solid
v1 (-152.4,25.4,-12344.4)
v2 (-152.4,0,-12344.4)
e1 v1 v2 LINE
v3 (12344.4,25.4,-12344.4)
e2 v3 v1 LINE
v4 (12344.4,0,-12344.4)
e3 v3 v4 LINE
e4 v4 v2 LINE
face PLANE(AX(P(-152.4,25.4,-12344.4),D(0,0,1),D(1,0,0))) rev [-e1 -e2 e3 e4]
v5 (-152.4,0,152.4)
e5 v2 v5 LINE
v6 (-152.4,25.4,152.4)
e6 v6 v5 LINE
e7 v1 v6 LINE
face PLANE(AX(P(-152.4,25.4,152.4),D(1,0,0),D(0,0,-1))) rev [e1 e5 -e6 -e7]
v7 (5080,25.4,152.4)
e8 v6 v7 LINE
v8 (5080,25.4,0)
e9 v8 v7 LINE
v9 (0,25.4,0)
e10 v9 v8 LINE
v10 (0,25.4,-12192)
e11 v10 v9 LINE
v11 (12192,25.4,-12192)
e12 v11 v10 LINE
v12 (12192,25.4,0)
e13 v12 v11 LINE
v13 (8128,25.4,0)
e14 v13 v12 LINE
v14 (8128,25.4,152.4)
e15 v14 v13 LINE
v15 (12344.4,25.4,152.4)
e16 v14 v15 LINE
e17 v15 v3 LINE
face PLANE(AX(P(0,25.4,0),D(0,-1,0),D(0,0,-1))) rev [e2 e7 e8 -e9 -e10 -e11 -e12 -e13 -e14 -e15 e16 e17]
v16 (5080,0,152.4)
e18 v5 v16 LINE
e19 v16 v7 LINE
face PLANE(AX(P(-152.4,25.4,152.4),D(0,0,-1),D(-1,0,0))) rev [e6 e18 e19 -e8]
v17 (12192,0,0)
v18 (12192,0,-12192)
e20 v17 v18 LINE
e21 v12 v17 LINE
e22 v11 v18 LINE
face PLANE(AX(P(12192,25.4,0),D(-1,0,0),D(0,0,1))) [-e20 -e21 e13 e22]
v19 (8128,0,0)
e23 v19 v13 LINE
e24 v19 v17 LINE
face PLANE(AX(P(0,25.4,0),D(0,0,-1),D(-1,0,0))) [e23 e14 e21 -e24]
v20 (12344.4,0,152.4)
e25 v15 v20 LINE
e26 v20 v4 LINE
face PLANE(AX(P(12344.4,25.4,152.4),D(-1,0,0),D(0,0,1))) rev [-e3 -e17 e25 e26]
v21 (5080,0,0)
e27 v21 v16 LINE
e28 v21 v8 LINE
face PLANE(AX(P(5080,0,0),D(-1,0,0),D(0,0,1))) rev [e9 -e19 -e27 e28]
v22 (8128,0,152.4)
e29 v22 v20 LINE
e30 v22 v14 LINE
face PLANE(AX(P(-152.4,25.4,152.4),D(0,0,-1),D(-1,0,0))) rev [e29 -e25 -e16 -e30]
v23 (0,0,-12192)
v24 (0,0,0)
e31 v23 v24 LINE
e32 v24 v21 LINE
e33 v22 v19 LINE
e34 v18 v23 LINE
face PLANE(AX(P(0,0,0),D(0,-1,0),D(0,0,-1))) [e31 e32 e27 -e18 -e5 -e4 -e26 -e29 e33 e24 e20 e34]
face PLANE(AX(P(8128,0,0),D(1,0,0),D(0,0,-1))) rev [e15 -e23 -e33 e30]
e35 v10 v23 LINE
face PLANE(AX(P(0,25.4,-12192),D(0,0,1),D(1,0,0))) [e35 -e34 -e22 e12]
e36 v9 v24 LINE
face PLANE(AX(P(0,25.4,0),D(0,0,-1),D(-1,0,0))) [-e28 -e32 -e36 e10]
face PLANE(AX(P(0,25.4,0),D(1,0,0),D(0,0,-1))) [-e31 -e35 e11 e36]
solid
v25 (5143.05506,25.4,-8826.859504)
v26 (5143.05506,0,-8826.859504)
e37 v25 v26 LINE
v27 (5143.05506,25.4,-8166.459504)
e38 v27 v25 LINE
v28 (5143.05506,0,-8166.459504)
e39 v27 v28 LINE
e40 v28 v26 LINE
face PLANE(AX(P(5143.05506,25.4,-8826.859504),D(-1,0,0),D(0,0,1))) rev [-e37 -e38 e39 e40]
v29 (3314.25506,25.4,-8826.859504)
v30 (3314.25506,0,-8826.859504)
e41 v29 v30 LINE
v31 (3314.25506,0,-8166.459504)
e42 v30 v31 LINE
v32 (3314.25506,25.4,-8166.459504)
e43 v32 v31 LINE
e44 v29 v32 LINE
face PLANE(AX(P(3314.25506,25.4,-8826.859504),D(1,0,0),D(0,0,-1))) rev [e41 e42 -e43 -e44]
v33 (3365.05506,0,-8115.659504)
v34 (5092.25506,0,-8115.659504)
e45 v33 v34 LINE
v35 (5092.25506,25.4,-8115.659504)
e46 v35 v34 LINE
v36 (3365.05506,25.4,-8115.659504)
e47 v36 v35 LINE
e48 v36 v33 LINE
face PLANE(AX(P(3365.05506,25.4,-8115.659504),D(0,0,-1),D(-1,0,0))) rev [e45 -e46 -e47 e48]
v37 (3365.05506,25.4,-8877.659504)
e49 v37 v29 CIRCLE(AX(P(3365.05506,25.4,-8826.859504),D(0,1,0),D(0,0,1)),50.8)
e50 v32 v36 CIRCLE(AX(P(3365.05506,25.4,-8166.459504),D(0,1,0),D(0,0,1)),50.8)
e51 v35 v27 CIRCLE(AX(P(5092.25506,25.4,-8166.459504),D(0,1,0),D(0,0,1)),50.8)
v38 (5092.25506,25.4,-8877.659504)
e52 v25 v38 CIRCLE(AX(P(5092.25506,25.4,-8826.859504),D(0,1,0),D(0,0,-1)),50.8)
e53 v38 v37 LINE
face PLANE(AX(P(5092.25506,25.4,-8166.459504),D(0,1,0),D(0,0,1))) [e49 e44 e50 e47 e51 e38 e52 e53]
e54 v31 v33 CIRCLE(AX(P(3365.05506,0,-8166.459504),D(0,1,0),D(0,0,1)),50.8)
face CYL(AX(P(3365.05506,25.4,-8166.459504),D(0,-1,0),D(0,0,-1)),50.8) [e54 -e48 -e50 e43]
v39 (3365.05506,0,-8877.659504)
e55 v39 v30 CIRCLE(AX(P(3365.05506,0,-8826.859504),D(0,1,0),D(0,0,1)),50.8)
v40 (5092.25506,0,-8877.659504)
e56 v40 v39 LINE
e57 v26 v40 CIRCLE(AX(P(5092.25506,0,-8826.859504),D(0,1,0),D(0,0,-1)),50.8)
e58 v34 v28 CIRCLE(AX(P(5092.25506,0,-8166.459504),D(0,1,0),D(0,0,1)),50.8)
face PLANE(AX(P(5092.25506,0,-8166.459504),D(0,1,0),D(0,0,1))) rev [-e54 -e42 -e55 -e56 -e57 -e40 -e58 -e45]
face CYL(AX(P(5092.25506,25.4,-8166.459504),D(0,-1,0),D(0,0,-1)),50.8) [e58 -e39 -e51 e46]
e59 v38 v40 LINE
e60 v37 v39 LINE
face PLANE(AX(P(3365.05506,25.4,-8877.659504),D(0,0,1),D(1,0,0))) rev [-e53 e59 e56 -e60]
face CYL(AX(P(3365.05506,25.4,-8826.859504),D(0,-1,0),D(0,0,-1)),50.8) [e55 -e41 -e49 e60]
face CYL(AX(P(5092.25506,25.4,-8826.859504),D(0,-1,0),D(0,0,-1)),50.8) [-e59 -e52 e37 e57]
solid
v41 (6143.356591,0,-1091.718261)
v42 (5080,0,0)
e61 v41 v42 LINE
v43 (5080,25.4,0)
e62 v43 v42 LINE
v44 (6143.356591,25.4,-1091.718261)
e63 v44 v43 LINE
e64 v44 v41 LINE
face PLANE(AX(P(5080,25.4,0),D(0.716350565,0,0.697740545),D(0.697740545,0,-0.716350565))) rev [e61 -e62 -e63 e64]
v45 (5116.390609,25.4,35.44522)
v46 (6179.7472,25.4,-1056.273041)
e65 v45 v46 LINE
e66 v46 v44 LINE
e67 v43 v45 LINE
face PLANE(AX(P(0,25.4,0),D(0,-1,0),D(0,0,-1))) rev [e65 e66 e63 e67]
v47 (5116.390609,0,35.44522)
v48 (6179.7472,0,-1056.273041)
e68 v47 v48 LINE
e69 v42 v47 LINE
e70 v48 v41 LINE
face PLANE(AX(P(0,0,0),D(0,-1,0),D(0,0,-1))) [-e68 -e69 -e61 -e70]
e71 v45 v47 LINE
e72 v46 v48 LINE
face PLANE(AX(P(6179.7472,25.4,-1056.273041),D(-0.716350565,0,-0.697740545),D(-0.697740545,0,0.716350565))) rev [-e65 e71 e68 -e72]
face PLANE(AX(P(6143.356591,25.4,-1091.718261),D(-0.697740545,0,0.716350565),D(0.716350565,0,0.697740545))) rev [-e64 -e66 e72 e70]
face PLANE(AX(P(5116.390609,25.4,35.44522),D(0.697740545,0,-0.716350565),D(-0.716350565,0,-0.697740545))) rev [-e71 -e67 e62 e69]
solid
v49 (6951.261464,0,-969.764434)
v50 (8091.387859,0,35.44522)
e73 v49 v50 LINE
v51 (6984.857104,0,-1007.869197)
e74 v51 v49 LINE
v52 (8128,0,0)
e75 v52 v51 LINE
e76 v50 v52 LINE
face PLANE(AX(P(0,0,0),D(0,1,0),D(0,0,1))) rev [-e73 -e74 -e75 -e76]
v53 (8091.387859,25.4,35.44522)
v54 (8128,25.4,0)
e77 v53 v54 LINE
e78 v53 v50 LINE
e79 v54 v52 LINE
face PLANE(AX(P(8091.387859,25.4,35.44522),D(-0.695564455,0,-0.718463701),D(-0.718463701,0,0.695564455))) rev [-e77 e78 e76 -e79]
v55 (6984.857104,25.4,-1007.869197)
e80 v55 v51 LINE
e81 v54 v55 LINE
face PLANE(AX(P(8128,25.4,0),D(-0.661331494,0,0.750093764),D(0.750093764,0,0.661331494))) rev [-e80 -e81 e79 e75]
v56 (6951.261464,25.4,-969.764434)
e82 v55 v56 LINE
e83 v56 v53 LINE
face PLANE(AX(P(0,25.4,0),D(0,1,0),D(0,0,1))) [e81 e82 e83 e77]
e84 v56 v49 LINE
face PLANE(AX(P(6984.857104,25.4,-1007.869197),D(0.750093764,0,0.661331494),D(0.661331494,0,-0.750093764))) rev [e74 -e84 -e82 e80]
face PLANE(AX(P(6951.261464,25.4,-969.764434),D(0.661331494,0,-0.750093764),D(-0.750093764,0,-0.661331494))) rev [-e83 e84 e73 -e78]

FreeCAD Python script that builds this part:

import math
import FreeCAD as App
import Part
import Sketcher

V = App.Vector
Q = App.Units.Quantity

doc = App.newDocument("Part")
body = doc.addObject("PartDesign::Body", "Body")

# Sketch on XZ plane
sketch1 = body.newObject("Sketcher::SketchObject", "Sketch")
sketch1.AttachmentSupport = (doc.getObject("XZ_Plane"), [""])
sketch1.MapMode = "FlatFace"
sketch1.addGeometry(Part.LineSegment(V(-152, -12344, 0), V(-152, 152, 0)), False)
sketch1.addGeometry(Part.LineSegment(V(-152, 152, 0), V(12344, 152, 0)), False)
sketch1.addGeometry(Part.LineSegment(V(12344, 152, 0), V(12344, -12344, 0)), False)
sketch1.addGeometry(Part.LineSegment(V(12344, -12344, 0), V(-152, -12344, 0)), False)
sketch1.addGeometry(Part.LineSegment(V(12192, 0, 0), V(0, 0, 0)), False)
sketch1.addGeometry(Part.LineSegment(V(0, 0, 0), V(0, -12192, 0)), False)
sketch1.addGeometry(Part.LineSegment(V(0, -12192, 0), V(12192, -12192, 0)), False)
sketch1.addGeometry(Part.LineSegment(V(12192, -12192, 0), V(12192, 0, 0)), False)
sketch1.addConstraint(Sketcher.Constraint("Coincident", 0, 2, 1, 1))
sketch1.addConstraint(Sketcher.Constraint("Coincident", 1, 2, 2, 1))
sketch1.addConstraint(Sketcher.Constraint("Coincident", 2, 2, 3, 1))
sketch1.addConstraint(Sketcher.Constraint("Coincident", 3, 2, 0, 1))
sketch1.addConstraint(Sketcher.Constraint("Coincident", 4, 2, 5, 1))
sketch1.addConstraint(Sketcher.Constraint("Coincident", 5, 2, 6, 1))
sketch1.addConstraint(Sketcher.Constraint("Coincident", 6, 2, 7, 1))
sketch1.addConstraint(Sketcher.Constraint("Coincident", 7, 2, 4, 1))
sketch1.addConstraint(Sketcher.Constraint("Vertical", 0))
sketch1.addConstraint(Sketcher.Constraint("Horizontal", 1))
sketch1.addConstraint(Sketcher.Constraint("Vertical", 2))
sketch1.addConstraint(Sketcher.Constraint("Horizontal", 3))
sketch1.addConstraint(Sketcher.Constraint("Horizontal", 4))
sketch1.addConstraint(Sketcher.Constraint("Vertical", 5))
sketch1.addConstraint(Sketcher.Constraint("Horizontal", 6))
sketch1.addConstraint(Sketcher.Constraint("Vertical", 7))
sketch1.addConstraint(Sketcher.Constraint("Coincident", 4, 2, -1, 1))
sketch1.addConstraint(Sketcher.Constraint("Equal", 3, 0))
sketch1.addConstraint(Sketcher.Constraint("Equal", 6, 5))
sketch1.addConstraint(Sketcher.Constraint("DistanceX", 1, 1, 1, 2, Q("492 in")))
sketch1.addConstraint(Sketcher.Constraint("DistanceX", 4, 2, 4, 1, Q("480 in")))
sketch1.addConstraint(Sketcher.Constraint("DistanceX", 0, 2, -1, 1, Q("6 in")))
sketch1.addConstraint(Sketcher.Constraint("DistanceY", -1, 1, 0, 2, Q("6 in")))
pad1 = body.newObject("PartDesign::Pad", "Pad")
pad1.Profile = sketch1
pad1.Length = Q("1 in")
pad1.Reversed = True

# Sketch on XZ plane
sketch2 = body.newObject("Sketcher::SketchObject", "Sketch001")
sketch2.AttachmentSupport = (doc.getObject("XZ_Plane"), [""])
sketch2.MapMode = "FlatFace"
sketch2.AttachmentOffset = App.Placement(V(0, 0, -1 * 25.4), App.Rotation())
sketch2.addGeometry(Part.LineSegment(V(5080, 0, 0), V(5080, 152, 0)), False)
sketch2.addGeometry(Part.LineSegment(V(5080, 152, 0), V(8128, 152, 0)), False)
sketch2.addGeometry(Part.LineSegment(V(8128, 152, 0), V(8128, 0, 0)), False)
sketch2.addGeometry(Part.LineSegment(V(8128, 0, 0), V(5080, 0, 0)), False)
sketch2.addConstraint(Sketcher.Constraint("Coincident", 0, 2, 1, 1))
sketch2.addConstraint(Sketcher.Constraint("Coincident", 1, 2, 2, 1))
sketch2.addConstraint(Sketcher.Constraint("Coincident", 2, 2, 3, 1))
sketch2.addConstraint(Sketcher.Constraint("Coincident", 3, 2, 0, 1))
sketch2.addConstraint(Sketcher.Constraint("Vertical", 0))
sketch2.addConstraint(Sketcher.Constraint("Horizontal", 1))
sketch2.addConstraint(Sketcher.Constraint("Vertical", 2))
sketch2.addConstraint(Sketcher.Constraint("Horizontal", 3))
sketch2.addConstraint(Sketcher.Constraint("PointOnObject", 2, 2, -1))
sketch2.addConstraint(Sketcher.Constraint("DistanceX", 1, 1, 1, 2, Q("120 in")))
sketch2.addConstraint(Sketcher.Constraint("DistanceY", 0, 1, 0, 2, Q("6 in")))
sketch2.addConstraint(Sketcher.Constraint("DistanceX", -1, 1, 0, 2, Q("200 in")))
pocket1 = body.newObject("PartDesign::Pocket", "Pocket")
pocket1.Profile = sketch2
pocket1.Type = "ThroughAll"
pocket1.Reversed = True
body2 = doc.addObject("PartDesign::Body", "Body001")

# Sketch on XZ plane
sketch3 = body2.newObject("Sketcher::SketchObject", "Sketch002")
sketch3.AttachmentSupport = (doc.getObject("XZ_Plane001"), [""])
sketch3.MapMode = "FlatFace"
sketch3.addGeometry(Part.LineSegment(V(5092, -8878, 0), V(3365, -8878, 0)), False)
sketch3.addGeometry(Part.ArcOfCircle(Part.Circle(V(3365, -8827, 0), V(0, 0, 1), 51), math.radians(180), math.radians(270)), False)
sketch3.addGeometry(Part.LineSegment(V(3314, -8827, 0), V(3314, -8166, 0)), False)
sketch3.addGeometry(Part.ArcOfCircle(Part.Circle(V(3365, -8166, 0), V(0, 0, 1), 51), math.radians(90), math.radians(180)), False)
sketch3.addGeometry(Part.LineSegment(V(3365, -8116, 0), V(5092, -8116, 0)), False)
sketch3.addGeometry(Part.ArcOfCircle(Part.Circle(V(5092, -8166, 0), V(0, 0, 1), 51), math.radians(0), math.radians(90)), False)
sketch3.addGeometry(Part.LineSegment(V(5143, -8166, 0), V(5143, -8827, 0)), False)
sketch3.addGeometry(Part.ArcOfCircle(Part.Circle(V(5092, -8827, 0), V(0, 0, 1), 51), math.radians(-90), math.radians(0)), False)
sketch3.addConstraint(Sketcher.Constraint("Tangent", 0, 2, 1, 2))
sketch3.addConstraint(Sketcher.Constraint("Tangent", 1, 1, 2, 1))
sketch3.addConstraint(Sketcher.Constraint("Tangent", 2, 2, 3, 2))
sketch3.addConstraint(Sketcher.Constraint("Tangent", 3, 1, 4, 1))
sketch3.addConstraint(Sketcher.Constraint("Tangent", 4, 2, 5, 2))
sketch3.addConstraint(Sketcher.Constraint("Tangent", 5, 1, 6, 1))
sketch3.addConstraint(Sketcher.Constraint("Tangent", 6, 2, 7, 2))
sketch3.addConstraint(Sketcher.Constraint("Tangent", 7, 1, 0, 1))
sketch3.addConstraint(Sketcher.Constraint("Horizontal", 0))
sketch3.addConstraint(Sketcher.Constraint("Vertical", 2))
sketch3.addConstraint(Sketcher.Constraint("Horizontal", 4))
sketch3.addConstraint(Sketcher.Constraint("Vertical", 6))
sketch3.addConstraint(Sketcher.Constraint("Equal", 1, 3))
sketch3.addConstraint(Sketcher.Constraint("Equal", 3, 5))
sketch3.addConstraint(Sketcher.Constraint("Equal", 5, 7))
sketch3.addConstraint(Sketcher.Constraint("Radius", 1, Q("2 in")))
sketch3.addConstraint(Sketcher.Constraint("DistanceX", 0, 2, 0, 1, Q("68 in")))
sketch3.addConstraint(Sketcher.Constraint("DistanceY", 2, 1, 2, 2, Q("26 in")))
sketch3.addConstraint(Sketcher.Constraint("DistanceX", -1, 1, 1, 3, 3365.05506))
sketch3.addConstraint(Sketcher.Constraint("DistanceY", 1, 3, -1, 1, 8826.859504))
pad2 = body2.newObject("PartDesign::Pad", "Pad001")
pad2.Profile = sketch3
pad2.Length = Q("1 in")
pad2.Reversed = True
body3 = doc.addObject("PartDesign::Body", "Body002")

# Sketch on XZ plane
sketch4 = body3.newObject("Sketcher::SketchObject", "Sketch003")
sketch4.AttachmentSupport = (doc.getObject("XZ_Plane002"), [""])
sketch4.MapMode = "FlatFace"
sketch4.addGeometry(Part.LineSegment(V(6143, -1092, 0), V(5080, 0, 0)), False)
sketch4.addGeometry(Part.LineSegment(V(5080, 0, 0), V(5116, 35, 0)), False)
sketch4.addGeometry(Part.LineSegment(V(5116, 35, 0), V(6180, -1056, 0)), False)
sketch4.addGeometry(Part.LineSegment(V(6180, -1056, 0), V(6143, -1092, 0)), False)
sketch4.addConstraint(Sketcher.Constraint("Coincident", 0, 2, 1, 1))
sketch4.addConstraint(Sketcher.Constraint("Coincident", 1, 2, 2, 1))
sketch4.addConstraint(Sketcher.Constraint("Coincident", 2, 2, 3, 1))
sketch4.addConstraint(Sketcher.Constraint("Coincident", 3, 2, 0, 1))
sketch4.addConstraint(Sketcher.Constraint("PointOnObject", 0, 2, -1))
sketch4.addConstraint(Sketcher.Constraint("Perpendicular", 0, 1))
sketch4.addConstraint(Sketcher.Constraint("Perpendicular", 1, 2))
sketch4.addConstraint(Sketcher.Constraint("Perpendicular", 2, 3))
sketch4.addConstraint(Sketcher.Constraint("Distance", 0, Q("60 in")))
sketch4.addConstraint(Sketcher.Constraint("Distance", 1, Q("2 in")))
sketch4.addConstraint(Sketcher.Constraint("DistanceX", -1, 1, 0, 2, Q("200 in")))
sketch4.addConstraint(Sketcher.Constraint("DistanceX", -1, 1, 2, 2, 6179.7472))
pad3 = body3.newObject("PartDesign::Pad", "Pad002")
pad3.Profile = sketch4
pad3.Length = Q("1 in")
pad3.Reversed = True
body4 = doc.addObject("PartDesign::Body", "Body003")

# Sketch on XZ plane
sketch5 = body4.newObject("Sketcher::SketchObject", "Sketch004")
sketch5.AttachmentSupport = (doc.getObject("XZ_Plane003"), [""])
sketch5.MapMode = "FlatFace"
sketch5.addGeometry(Part.LineSegment(V(8128, 0, 0), V(6984.857104, -1007.869197, 0)), False)
sketch5.addGeometry(Part.LineSegment(V(6984.857104, -1007.869197, 0), V(6951.261464, -969.764434, 0)), False)
sketch5.addGeometry(Part.LineSegment(V(6951.261464, -969.764434, 0), V(8091.387859, 35.44522, 0)), False)
sketch5.addGeometry(Part.LineSegment(V(8091.387859, 35.44522, 0), V(8128, 0, 0)), False)
sketch5.addConstraint(Sketcher.Constraint("Coincident", 0, 2, 1, 1))
sketch5.addConstraint(Sketcher.Constraint("Coincident", 1, 2, 2, 1))
sketch5.addConstraint(Sketcher.Constraint("Coincident", 2, 2, 3, 1))
sketch5.addConstraint(Sketcher.Constraint("Coincident", 3, 2, 0, 1))
sketch5.addConstraint(Sketcher.Constraint("PointOnObject", 3, 2, -1))
sketch5.addConstraint(Sketcher.Constraint("Perpendicular", 0, 1))
sketch5.addConstraint(Sketcher.Constraint("Perpendicular", 1, 2))
sketch5.addConstraint(Sketcher.Constraint("Distance", 0, Q("60 in")))
sketch5.addConstraint(Sketcher.Constraint("Distance", 1, Q("2 in")))
sketch5.addConstraint(Sketcher.Constraint("DistanceX", -1, 1, 3, 2, Q("320 in")))
sketch5.addConstraint(Sketcher.Constraint("Distance", 2, 1519.978502))
sketch5.addConstraint(Sketcher.Constraint("DistanceX", -1, 1, 2, 2, 8091.387859))
pad4 = body4.newObject("PartDesign::Pad", "Pad003")
pad4.Profile = sketch5
pad4.Length = Q("1 in")
pad4.Reversed = True

doc.recompute()
